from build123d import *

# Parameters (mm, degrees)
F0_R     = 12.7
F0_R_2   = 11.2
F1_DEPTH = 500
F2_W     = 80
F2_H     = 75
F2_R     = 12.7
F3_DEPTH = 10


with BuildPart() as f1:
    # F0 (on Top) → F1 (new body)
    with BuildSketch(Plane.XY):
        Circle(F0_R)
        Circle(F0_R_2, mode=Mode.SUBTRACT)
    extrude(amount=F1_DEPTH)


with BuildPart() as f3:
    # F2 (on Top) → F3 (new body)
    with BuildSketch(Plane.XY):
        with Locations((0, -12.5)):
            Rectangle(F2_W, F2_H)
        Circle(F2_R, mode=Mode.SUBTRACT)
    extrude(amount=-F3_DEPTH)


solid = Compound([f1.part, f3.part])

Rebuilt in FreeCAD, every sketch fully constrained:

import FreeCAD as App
import Part
import Sketcher
from FreeCAD import Vector

doc = App.newDocument("Part")
body = doc.addObject("PartDesign::Body", "Body")

# Sketch on XY plane
sketch1 = body.newObject("Sketcher::SketchObject", "Sketch")
sketch1.AttachmentSupport = (doc.getObject("XY_Plane"), [""])
sketch1.MapMode = "FlatFace"
sketch1.addGeometry([
    Part.Circle(Vector(0, 0, 0), Vector(0, 0, 1), 13),
    Part.Circle(Vector(0, 0, 0), Vector(0, 0, 1), 11),
], False)
sketch1.addConstraint([
    Sketcher.Constraint("Coincident", 0, 3, -1, 1),
    Sketcher.Constraint("Coincident", 1, 3, -1, 1),
    Sketcher.Constraint("Diameter", 0, 25.4),
    Sketcher.Constraint("Diameter", 1, 22.4),
])
pad1 = body.newObject("PartDesign::Pad", "Pad")
pad1.Profile = sketch1
pad1.Length = 500
body2 = doc.addObject("PartDesign::Body", "Body001")

# Sketch on XY plane
sketch2 = body2.newObject("Sketcher::SketchObject", "Sketch001")
sketch2.AttachmentSupport = (doc.getObject("XY_Plane001"), [""])
sketch2.MapMode = "FlatFace"
sketch2.addGeometry([
    Part.LineSegment(Vector(-40, 25, 0), Vector(-40, -50, 0)),  # 0
    Part.LineSegment(Vector(-40, -50, 0), Vector(40, -50, 0)),  # 1
    Part.LineSegment(Vector(40, -50, 0), Vector(40, 25, 0)),  # 2
    Part.LineSegment(Vector(40, 25, 0), Vector(-40, 25, 0)),  # 3
    Part.Circle(Vector(0, 0, 0), Vector(0, 0, 1), 13),  # 4
], False)
sketch2.addConstraint([
    Sketcher.Constraint("Coincident", 0, 2, 1, 1),
    Sketcher.Constraint("Coincident", 1, 2, 2, 1),
    Sketcher.Constraint("Coincident", 2, 2, 3, 1),
    Sketcher.Constraint("Coincident", 3, 2, 0, 1),
    Sketcher.Constraint("Vertical", 0),
    Sketcher.Constraint("Horizontal", 1),
    Sketcher.Constraint("Vertical", 2),
    Sketcher.Constraint("Horizontal", 3),
    Sketcher.Constraint("Coincident", 4, 3, -1, 1),
    Sketcher.Constraint("Diameter", 4, 25.4),
    Sketcher.Constraint("DistanceX", 1, 1, 1, 2, 80.0),
    Sketcher.Constraint("DistanceY", 0, 2, 0, 1, 75.0),
    Sketcher.Constraint("DistanceX", 0, 2, -1, 1, 40.0),
    Sketcher.Constraint("DistanceY", 0, 2, -1, 1, 50.0),
])
pad2 = body2.newObject("PartDesign::Pad", "Pad001")
pad2.Profile = sketch2
pad2.Length = 10
pad2.Reversed = True

doc.recompute()
